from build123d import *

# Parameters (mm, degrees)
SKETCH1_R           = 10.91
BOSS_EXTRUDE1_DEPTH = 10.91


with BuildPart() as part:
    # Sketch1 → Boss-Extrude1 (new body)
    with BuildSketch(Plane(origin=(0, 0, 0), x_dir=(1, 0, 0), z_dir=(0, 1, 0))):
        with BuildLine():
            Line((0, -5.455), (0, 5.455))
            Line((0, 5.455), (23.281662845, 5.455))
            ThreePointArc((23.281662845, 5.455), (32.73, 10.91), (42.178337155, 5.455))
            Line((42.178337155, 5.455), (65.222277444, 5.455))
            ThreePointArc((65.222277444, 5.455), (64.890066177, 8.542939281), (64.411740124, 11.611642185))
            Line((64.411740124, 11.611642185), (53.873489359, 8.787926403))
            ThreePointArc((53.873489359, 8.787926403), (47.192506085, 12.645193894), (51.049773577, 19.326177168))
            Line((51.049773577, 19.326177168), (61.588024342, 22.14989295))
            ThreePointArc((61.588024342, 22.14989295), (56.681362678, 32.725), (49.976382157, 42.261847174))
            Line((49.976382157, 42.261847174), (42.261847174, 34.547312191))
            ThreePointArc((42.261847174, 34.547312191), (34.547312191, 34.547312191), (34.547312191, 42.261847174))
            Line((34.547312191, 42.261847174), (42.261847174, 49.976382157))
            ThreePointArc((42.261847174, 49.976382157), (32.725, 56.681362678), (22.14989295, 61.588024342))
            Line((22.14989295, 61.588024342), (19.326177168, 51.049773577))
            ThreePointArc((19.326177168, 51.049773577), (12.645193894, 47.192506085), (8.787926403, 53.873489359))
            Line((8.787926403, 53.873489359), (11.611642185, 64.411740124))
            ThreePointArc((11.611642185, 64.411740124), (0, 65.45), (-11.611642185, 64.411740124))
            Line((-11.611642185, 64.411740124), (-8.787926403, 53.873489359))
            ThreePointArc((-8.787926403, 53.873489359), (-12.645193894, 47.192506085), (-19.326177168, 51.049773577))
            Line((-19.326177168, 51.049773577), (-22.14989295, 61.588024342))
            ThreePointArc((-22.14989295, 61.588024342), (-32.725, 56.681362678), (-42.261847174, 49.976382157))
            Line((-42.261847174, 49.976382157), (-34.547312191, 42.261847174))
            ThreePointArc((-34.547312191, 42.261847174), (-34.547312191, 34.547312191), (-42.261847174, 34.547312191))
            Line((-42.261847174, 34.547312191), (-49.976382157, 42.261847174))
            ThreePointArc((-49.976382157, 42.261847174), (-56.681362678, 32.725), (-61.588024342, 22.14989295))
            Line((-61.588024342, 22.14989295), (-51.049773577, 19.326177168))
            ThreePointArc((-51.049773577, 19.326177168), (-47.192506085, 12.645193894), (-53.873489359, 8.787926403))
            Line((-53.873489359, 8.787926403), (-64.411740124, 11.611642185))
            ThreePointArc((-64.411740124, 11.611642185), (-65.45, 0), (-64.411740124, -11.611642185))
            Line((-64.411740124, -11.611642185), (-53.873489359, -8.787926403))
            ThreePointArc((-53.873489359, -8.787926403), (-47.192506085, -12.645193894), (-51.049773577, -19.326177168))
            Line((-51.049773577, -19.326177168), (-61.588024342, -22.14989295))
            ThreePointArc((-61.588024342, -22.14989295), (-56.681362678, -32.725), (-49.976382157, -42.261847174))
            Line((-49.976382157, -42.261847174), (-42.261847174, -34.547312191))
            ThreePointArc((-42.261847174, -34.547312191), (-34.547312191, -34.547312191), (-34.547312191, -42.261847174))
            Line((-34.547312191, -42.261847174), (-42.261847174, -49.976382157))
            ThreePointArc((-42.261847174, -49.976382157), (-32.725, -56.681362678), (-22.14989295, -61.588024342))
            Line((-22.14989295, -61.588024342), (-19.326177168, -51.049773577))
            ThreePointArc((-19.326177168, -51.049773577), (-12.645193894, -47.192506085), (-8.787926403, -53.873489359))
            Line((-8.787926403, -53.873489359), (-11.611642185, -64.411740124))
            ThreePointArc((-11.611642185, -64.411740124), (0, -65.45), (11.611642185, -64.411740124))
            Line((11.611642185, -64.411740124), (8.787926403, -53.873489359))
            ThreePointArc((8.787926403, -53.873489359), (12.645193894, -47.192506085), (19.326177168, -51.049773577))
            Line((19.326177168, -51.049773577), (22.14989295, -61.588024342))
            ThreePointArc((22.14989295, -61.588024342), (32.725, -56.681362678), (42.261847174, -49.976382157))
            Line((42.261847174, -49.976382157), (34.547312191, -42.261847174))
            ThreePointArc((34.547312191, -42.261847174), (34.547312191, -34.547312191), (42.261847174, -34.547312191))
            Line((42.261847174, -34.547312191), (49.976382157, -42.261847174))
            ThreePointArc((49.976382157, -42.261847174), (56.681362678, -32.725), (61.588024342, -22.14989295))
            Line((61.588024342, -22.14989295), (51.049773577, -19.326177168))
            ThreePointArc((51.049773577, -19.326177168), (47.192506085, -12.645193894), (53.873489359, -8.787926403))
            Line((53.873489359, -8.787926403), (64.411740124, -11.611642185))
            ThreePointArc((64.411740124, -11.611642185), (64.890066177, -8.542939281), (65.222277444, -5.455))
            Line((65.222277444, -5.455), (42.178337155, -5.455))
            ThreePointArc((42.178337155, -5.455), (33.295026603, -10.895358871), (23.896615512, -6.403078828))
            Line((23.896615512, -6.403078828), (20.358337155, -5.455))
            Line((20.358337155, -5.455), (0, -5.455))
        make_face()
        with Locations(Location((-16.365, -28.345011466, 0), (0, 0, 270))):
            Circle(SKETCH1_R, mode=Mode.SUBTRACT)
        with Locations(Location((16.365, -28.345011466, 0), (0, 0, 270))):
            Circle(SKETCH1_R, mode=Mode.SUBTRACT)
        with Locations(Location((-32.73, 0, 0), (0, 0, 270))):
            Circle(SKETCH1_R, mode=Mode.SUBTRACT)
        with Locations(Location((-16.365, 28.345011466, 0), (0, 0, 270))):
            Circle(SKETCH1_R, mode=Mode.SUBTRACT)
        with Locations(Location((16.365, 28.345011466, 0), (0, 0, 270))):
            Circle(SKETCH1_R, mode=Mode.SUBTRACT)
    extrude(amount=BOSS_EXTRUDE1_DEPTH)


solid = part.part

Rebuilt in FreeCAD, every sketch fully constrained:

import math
import FreeCAD as App
import Part
import Sketcher
Q = App.Units.Quantity

doc = App.newDocument("Part")
body = doc.addObject("PartDesign::Body", "Body")

sketch1 = doc.addObject("Sketcher::SketchObject", "Sketch")
body.addObject(sketch1)
sketch1.AttachmentSupport = (doc.XZ_Plane, [""])
sketch1.MapMode = "FlatFace"
sketch1.addGeometry([
    Part.LineSegment(App.Vector(0, 5.5, 0), App.Vector(0, -5.5, 0)),
    Part.LineSegment(App.Vector(0, -5.5, 0), App.Vector(23.3, -5.5, 0)),
    Part.ArcOfCircle(Part.Circle(App.Vector(32.7, 0, 0), App.Vector(0, 0, 1), 10.9), math.radians(-150), math.radians(-30)),
    Part.LineSegment(App.Vector(42.2, -5.5, 0), App.Vector(65.2, -5.5, 0)),
    Part.ArcOfCircle(Part.Circle(App.Vector(0, 0, 0), App.Vector(0, 0, 1), 65.4), math.radians(-10.22), math.radians(-4.78)),
    Part.LineSegment(App.Vector(64.4, -11.6, 0), App.Vector(53.9, -8.8, 0)),
    Part.ArcOfCircle(Part.Circle(App.Vector(52.5, -14.1, 0), App.Vector(0, 0, 1), 5.5), math.radians(75), math.radians(255)),
    Part.LineSegment(App.Vector(51, -19.3, 0), App.Vector(61.6, -22.1, 0)),
    Part.ArcOfCircle(Part.Circle(App.Vector(0, 0, 0), App.Vector(0, 0, 1), 65.5), math.radians(-40), math.radians(-20)),
    Part.LineSegment(App.Vector(50, -42.3, 0), App.Vector(42.3, -34.5, 0)),
    Part.ArcOfCircle(Part.Circle(App.Vector(38.4, -38.4, 0), App.Vector(0, 0, 1), 5.5), math.radians(45), math.radians(225)),
    Part.LineSegment(App.Vector(34.5, -42.3, 0), App.Vector(42.3, -50, 0)),
    Part.ArcOfCircle(Part.Circle(App.Vector(0, 0, 0), App.Vector(0, 0, 1), 65.5), math.radians(-70), math.radians(-50)),
    Part.LineSegment(App.Vector(22.1, -61.6, 0), App.Vector(19.3, -51, 0)),
    Part.ArcOfCircle(Part.Circle(App.Vector(14.1, -52.5, 0), App.Vector(0, 0, 1), 5.5), math.radians(15), math.radians(195)),
    Part.LineSegment(App.Vector(8.8, -53.9, 0), App.Vector(11.6, -64.4, 0)),
    Part.ArcOfCircle(Part.Circle(App.Vector(0, 0, 0), App.Vector(0, 0, 1), 65.5), math.radians(-100), math.radians(-80)),
    Part.LineSegment(App.Vector(-11.6, -64.4, 0), App.Vector(-8.8, -53.9, 0)),
    Part.ArcOfCircle(Part.Circle(App.Vector(-14.1, -52.5, 0), App.Vector(0, 0, 1), 5.5), math.radians(-15), math.radians(165)),
    Part.LineSegment(App.Vector(-19.3, -51, 0), App.Vector(-22.1, -61.6, 0)),
    Part.ArcOfCircle(Part.Circle(App.Vector(0, 0, 0), App.Vector(0, 0, 1), 65.5), math.radians(-130), math.radians(-110)),
    Part.LineSegment(App.Vector(-42.3, -50, 0), App.Vector(-34.5, -42.3, 0)),
    Part.ArcOfCircle(Part.Circle(App.Vector(-38.4, -38.4, 0), App.Vector(0, 0, 1), 5.5), math.radians(-45), math.radians(135)),
    Part.LineSegment(App.Vector(-42.3, -34.5, 0), App.Vector(-50, -42.3, 0)),
    Part.ArcOfCircle(Part.Circle(App.Vector(0, 0, 0), App.Vector(0, 0, 1), 65.5), math.radians(-160), math.radians(-140)),
    Part.LineSegment(App.Vector(-61.6, -22.1, 0), App.Vector(-51, -19.3, 0)),
    Part.ArcOfCircle(Part.Circle(App.Vector(-52.5, -14.1, 0), App.Vector(0, 0, 1), 5.5), math.radians(-75), math.radians(105)),
    Part.LineSegment(App.Vector(-53.9, -8.8, 0), App.Vector(-64.4, -11.6, 0)),
    Part.ArcOfCircle(Part.Circle(App.Vector(0, 0, 0), App.Vector(0, 0, 1), 65.5), math.radians(170), math.radians(190)),
    Part.LineSegment(App.Vector(-64.4, 11.6, 0), App.Vector(-53.9, 8.8, 0)),
    Part.ArcOfCircle(Part.Circle(App.Vector(-52.5, 14.1, 0), App.Vector(0, 0, 1), 5.5), math.radians(-105), math.radians(75)),
    Part.LineSegment(App.Vector(-51, 19.3, 0), App.Vector(-61.6, 22.1, 0)),
    Part.ArcOfCircle(Part.Circle(App.Vector(0, 0, 0), App.Vector(0, 0, 1), 65.5), math.radians(140), math.radians(160)),
    Part.LineSegment(App.Vector(-50, 42.3, 0), App.Vector(-42.3, 34.5, 0)),
    Part.ArcOfCircle(Part.Circle(App.Vector(-38.4, 38.4, 0), App.Vector(0, 0, 1), 5.5), math.radians(-135), math.radians(45)),
    Part.LineSegment(App.Vector(-34.5, 42.3, 0), App.Vector(-42.3, 50, 0)),
    Part.ArcOfCircle(Part.Circle(App.Vector(0, 0, 0), App.Vector(0, 0, 1), 65.5), math.radians(110), math.radians(130)),
    Part.LineSegment(App.Vector(-22.1, 61.6, 0), App.Vector(-19.3, 51, 0)),
    Part.ArcOfCircle(Part.Circle(App.Vector(-14.1, 52.5, 0), App.Vector(0, 0, 1), 5.5), math.radians(-165), math.radians(15)),
    Part.LineSegment(App.Vector(-8.8, 53.9, 0), App.Vector(-11.6, 64.4, 0)),
    Part.ArcOfCircle(Part.Circle(App.Vector(0, 0, 0), App.Vector(0, 0, 1), 65.5), math.radians(80), math.radians(100)),
    Part.LineSegment(App.Vector(11.6, 64.4, 0), App.Vector(8.8, 53.9, 0)),
    Part.ArcOfCircle(Part.Circle(App.Vector(14.1, 52.5, 0), App.Vector(0, 0, 1), 5.5), math.radians(165), math.radians(345)),
    Part.LineSegment(App.Vector(19.3, 51, 0), App.Vector(22.1, 61.6, 0)),
    Part.ArcOfCircle(Part.Circle(App.Vector(0, 0, 0), App.Vector(0, 0, 1), 65.5), math.radians(50), math.radians(70)),
    Part.LineSegment(App.Vector(42.3, 50, 0), App.Vector(34.5, 42.3, 0)),
    Part.ArcOfCircle(Part.Circle(App.Vector(38.4, 38.4, 0), App.Vector(0, 0, 1), 5.5), math.radians(135), math.radians(315)),
    Part.LineSegment(App.Vector(42.3, 34.5, 0), App.Vector(50, 42.3, 0)),
    Part.ArcOfCircle(Part.Circle(App.Vector(0, 0, 0), App.Vector(0, 0, 1), 65.5), math.radians(20), math.radians(40)),
    Part.LineSegment(App.Vector(61.6, 22.1, 0), App.Vector(51, 19.3, 0)),
    Part.ArcOfCircle(Part.Circle(App.Vector(52.5, 14.1, 0), App.Vector(0, 0, 1), 5.5), math.radians(105), math.radians(285)),
    Part.LineSegment(App.Vector(53.9, 8.8, 0), App.Vector(64.4, 11.6, 0)),
    Part.ArcOfCircle(Part.Circle(App.Vector(0, 0, 0), App.Vector(0, 0, 1), 65.4), math.radians(4.78), math.radians(10.22)),
    Part.LineSegment(App.Vector(65.2, 5.5, 0), App.Vector(42.2, 5.5, 0)),
    Part.ArcOfCircle(Part.Circle(App.Vector(32.7, 0, 0), App.Vector(0, 0, 1), 10.9), math.radians(30), math.radians(144)),
    Part.LineSegment(App.Vector(23.9, 6.4, 0), App.Vector(20.4, 5.5, 0)),
    Part.LineSegment(App.Vector(20.4, 5.5, 0), App.Vector(0, 5.5, 0)),
    Part.Circle(App.Vector(-16.4, 28.3, 0), App.Vector(0, 0, 1), 10.9),
    Part.Circle(App.Vector(16.4, 28.3, 0), App.Vector(0, 0, 1), 10.9),
    Part.Circle(App.Vector(-32.7, 0, 0), App.Vector(0, 0, 1), 10.9),
    Part.Circle(App.Vector(-16.4, -28.3, 0), App.Vector(0, 0, 1), 10.9),
    Part.Circle(App.Vector(16.4, -28.3, 0), App.Vector(0, 0, 1), 10.9),
], False)
sketch1.addConstraint([
    Sketcher.Constraint("Coincident", 0, 2, 1, 1),
    Sketcher.Constraint("Coincident", 1, 2, 2, 1),
    Sketcher.Constraint("Coincident", 2, 2, 3, 1),
    Sketcher.Constraint("Coincident", 3, 2, 4, 2),
    Sketcher.Constraint("Coincident", 4, 1, 5, 1),
    Sketcher.Constraint("Tangent", 5, 2, 6, 1),
    Sketcher.Constraint("Tangent", 6, 2, 7, 1),
    Sketcher.Constraint("Coincident", 7, 2, 8, 2),
    Sketcher.Constraint("Coincident", 8, 1, 9, 1),
    Sketcher.Constraint("Tangent", 9, 2, 10, 1),
    Sketcher.Constraint("Tangent", 10, 2, 11, 1),
    Sketcher.Constraint("Coincident", 11, 2, 12, 2),
    Sketcher.Constraint("Coincident", 12, 1, 13, 1),
    Sketcher.Constraint("Tangent", 13, 2, 14, 1),
    Sketcher.Constraint("Tangent", 14, 2, 15, 1),
    Sketcher.Constraint("Coincident", 15, 2, 16, 2),
    Sketcher.Constraint("Coincident", 16, 1, 17, 1),
    Sketcher.Constraint("Tangent", 17, 2, 18, 1),
    Sketcher.Constraint("Tangent", 18, 2, 19, 1),
    Sketcher.Constraint("Coincident", 19, 2, 20, 2),
    Sketcher.Constraint("Coincident", 20, 1, 21, 1),
    Sketcher.Constraint("Tangent", 21, 2, 22, 1),
    Sketcher.Constraint("Tangent", 22, 2, 23, 1),
    Sketcher.Constraint("Coincident", 23, 2, 24, 2),
    Sketcher.Constraint("Coincident", 24, 1, 25, 1),
    Sketcher.Constraint("Tangent", 25, 2, 26, 1),
    Sketcher.Constraint("Tangent", 26, 2, 27, 1),
    Sketcher.Constraint("Coincident", 27, 2, 28, 2),
    Sketcher.Constraint("Coincident", 28, 1, 29, 1),
    Sketcher.Constraint("Tangent", 29, 2, 30, 1),
    Sketcher.Constraint("Tangent", 30, 2, 31, 1),
    Sketcher.Constraint("Coincident", 31, 2, 32, 2),
    Sketcher.Constraint("Coincident", 32, 1, 33, 1),
    Sketcher.Constraint("Tangent", 33, 2, 34, 1),
    Sketcher.Constraint("Tangent", 34, 2, 35, 1),
    Sketcher.Constraint("Coincident", 35, 2, 36, 2),
    Sketcher.Constraint("Coincident", 36, 1, 37, 1),
    Sketcher.Constraint("Tangent", 37, 2, 38, 1),
    Sketcher.Constraint("Tangent", 38, 2, 39, 1),
    Sketcher.Constraint("Coincident", 39, 2, 40, 2),
    Sketcher.Constraint("Coincident", 40, 1, 41, 1),
    Sketcher.Constraint("Tangent", 41, 2, 42, 1),
    Sketcher.Constraint("Tangent", 42, 2, 43, 1),
    Sketcher.Constraint("Coincident", 43, 2, 44, 2),
    Sketcher.Constraint("Coincident", 44, 1, 45, 1),
    Sketcher.Constraint("Tangent", 45, 2, 46, 1),
    Sketcher.Constraint("Tangent", 46, 2, 47, 1),
    Sketcher.Constraint("Coincident", 47, 2, 48, 2),
    Sketcher.Constraint("Coincident", 48, 1, 49, 1),
    Sketcher.Constraint("Tangent", 49, 2, 50, 1),
    Sketcher.Constraint("Tangent", 50, 2, 51, 1),
    Sketcher.Constraint("Coincident", 51, 2, 52, 2),
    Sketcher.Constraint("Coincident", 52, 1, 53, 1),
    Sketcher.Constraint("Coincident", 53, 2, 54, 1),
    Sketcher.Constraint("Coincident", 54, 2, 55, 1),
    Sketcher.Constraint("Coincident", 55, 2, 56, 1),
    Sketcher.Constraint("Coincident", 56, 2, 0, 1),
    Sketcher.Constraint("Vertical", 0),
    Sketcher.Constraint("Horizontal", 1),
    Sketcher.Constraint("Horizontal", 3),
    Sketcher.Constraint("Horizontal", 53),
    Sketcher.Constraint("Horizontal", 56),
    Sketcher.Constraint("Coincident", 4, 3, -1, 1),
    Sketcher.Constraint("Coincident", 8, 3, -1, 1),
    Sketcher.Constraint("Coincident", 12, 3, -1, 1),
    Sketcher.Constraint("Coincident", 16, 3, -1, 1),
    Sketcher.Constraint("Coincident", 20, 3, -1, 1),
    Sketcher.Constraint("Coincident", 24, 3, -1, 1),
    Sketcher.Constraint("Coincident", 28, 3, -1, 1),
    Sketcher.Constraint("Coincident", 32, 3, -1, 1),
    Sketcher.Constraint("Coincident", 36, 3, -1, 1),
    Sketcher.Constraint("Coincident", 40, 3, -1, 1),
    Sketcher.Constraint("Coincident", 44, 3, -1, 1),
    Sketcher.Constraint("Coincident", 48, 3, -1, 1),
    Sketcher.Constraint("Coincident", 52, 3, -1, 1),
    Sketcher.Constraint("Coincident", 54, 3, 2, 3),
    Sketcher.Constraint("Equal", 4, 8),
    Sketcher.Constraint("Equal", 6, 10),
    Sketcher.Constraint("Equal", 8, 12),
    Sketcher.Constraint("Equal", 10, 14),
    Sketcher.Constraint("Equal", 12, 16),
    Sketcher.Constraint("Equal", 14, 18),
    Sketcher.Constraint("Equal", 16, 20),
    Sketcher.Constraint("Equal", 18, 22),
    Sketcher.Constraint("Equal", 20, 24),
    Sketcher.Constraint("Equal", 22, 26),
    Sketcher.Constraint("Equal", 24, 28),
    Sketcher.Constraint("Equal", 26, 30),
    Sketcher.Constraint("Equal", 28, 32),
    Sketcher.Constraint("Equal", 30, 34),
    Sketcher.Constraint("Equal", 32, 36),
    Sketcher.Constraint("Equal", 34, 38),
    Sketcher.Constraint("Equal", 36, 40),
    Sketcher.Constraint("Equal", 38, 42),
    Sketcher.Constraint("Equal", 40, 44),
    Sketcher.Constraint("Equal", 42, 46),
    Sketcher.Constraint("Equal", 44, 48),
    Sketcher.Constraint("Equal", 46, 50),
    Sketcher.Constraint("Equal", 48, 52),
    Sketcher.Constraint("Equal", 2, 54),
    Sketcher.Constraint("Equal", 54, 57),
    Sketcher.Constraint("Equal", 57, 58),
    Sketcher.Constraint("Equal", 58, 59),
    Sketcher.Constraint("Equal", 59, 60),
    Sketcher.Constraint("Equal", 60, 61),
    Sketcher.Constraint("Symmetric", 6, 3, 30, 3, -1, 1),
    Sketcher.Constraint("Symmetric", 10, 3, 34, 3, -1, 1),
    Sketcher.Constraint("Symmetric", 14, 3, 38, 3, -1, 1),
    Sketcher.Constraint("Symmetric", 18, 3, 42, 3, -1, 1),
    Sketcher.Constraint("Symmetric", 22, 3, 46, 3, -1, 1),
    Sketcher.Constraint("Symmetric", 26, 3, 50, 3, -1, 1),
    Sketcher.Constraint("Symmetric", 2, 3, 59, 3, -1, 1),
    Sketcher.Constraint("Symmetric", 58, 3, 60, 3, -1, 1),
    Sketcher.Constraint("Symmetric", 57, 3, 61, 3, -1, 1),
    Sketcher.Constraint("Symmetric", 0, 2, 56, 2, -1, 1),
    Sketcher.Constraint("Symmetric", 14, 3, 18, 3, -2),
    Sketcher.Constraint("Symmetric", 10, 3, 22, 3, -2),
    Sketcher.Constraint("Symmetric", 6, 3, 26, 3, -2),
    Sketcher.Constraint("Symmetric", 57, 3, 58, 3, -2),
    Sketcher.Constraint("Symmetric", 2, 2, 53, 2, -1),
    Sketcher.Constraint("Parallel", 5, 7),
    Sketcher.Constraint("Parallel", 9, 11),
    Sketcher.Constraint("Parallel", 13, 15),
    Sketcher.Constraint("Perpendicular", 7, 17),
    Sketcher.Constraint("Parallel", 17, 19),
    Sketcher.Constraint("Perpendicular", 11, 21),
    Sketcher.Constraint("Parallel", 21, 23),
    Sketcher.Constraint("Perpendicular", 15, 25),
    Sketcher.Constraint("Parallel", 25, 27),
    Sketcher.Constraint("Perpendicular", 19, 29),
    Sketcher.Constraint("Parallel", 29, 31),
    Sketcher.Constraint("Perpendicular", 23, 33),
    Sketcher.Constraint("Parallel", 33, 35),
    Sketcher.Constraint("Perpendicular", 27, 37),
    Sketcher.Constraint("Parallel", 37, 39),
    Sketcher.Constraint("Perpendicular", 31, 41),
    Sketcher.Constraint("Parallel", 41, 43),
    Sketcher.Constraint("Perpendicular", 35, 45),
    Sketcher.Constraint("Parallel", 45, 47),
    Sketcher.Constraint("Perpendicular", 39, 49),
    Sketcher.Constraint("Parallel", 49, 51),
    Sketcher.Constraint("Parallel", 51, 55),
    Sketcher.Constraint("Horizontal", 1, 2, 2, 2),
    Sketcher.Constraint("Horizontal", 8, 1, 10, 2),
    Sketcher.Constraint("Horizontal", 15, 2, 16, 1),
    Sketcher.Constraint("Horizontal", 11, 2, 20, 1),
    Sketcher.Constraint("Vertical", 9, 2, 11, 2),
    Sketcher.Constraint("Equal", 5, 7),
    Sketcher.Constraint("Equal", 7, 9),
    Sketcher.Constraint("Equal", 11, 13),
    Sketcher.Constraint("Equal", 13, 15),
    Sketcher.Constraint("Diameter", 57, 21.82),
    Sketcher.Constraint("Angle", 5, Q("165 deg")),
    Sketcher.Constraint("Radius", 4, 65.45),
    Sketcher.Constraint("Radius", 6, 5.455),
    Sketcher.Constraint("DistanceY", 0, 2, 0, 1, 10.91),
    Sketcher.Constraint("DistanceX", -1, 1, 2, 3, 32.73),
    Sketcher.Constraint("DistanceX", 57, 3, -1, 1, 16.365),
    Sketcher.Constraint("DistanceX", 56, 2, 56, 1, 20.358337),
    Sketcher.Constraint("DistanceY", -1, 1, 57, 3, 28.345011),
])
pad1 = doc.addObject("PartDesign::Pad", "Pad")
body.addObject(pad1)
pad1.Profile = sketch1
pad1.Length = 10.91
pad1.Reversed = True

doc.recompute()
